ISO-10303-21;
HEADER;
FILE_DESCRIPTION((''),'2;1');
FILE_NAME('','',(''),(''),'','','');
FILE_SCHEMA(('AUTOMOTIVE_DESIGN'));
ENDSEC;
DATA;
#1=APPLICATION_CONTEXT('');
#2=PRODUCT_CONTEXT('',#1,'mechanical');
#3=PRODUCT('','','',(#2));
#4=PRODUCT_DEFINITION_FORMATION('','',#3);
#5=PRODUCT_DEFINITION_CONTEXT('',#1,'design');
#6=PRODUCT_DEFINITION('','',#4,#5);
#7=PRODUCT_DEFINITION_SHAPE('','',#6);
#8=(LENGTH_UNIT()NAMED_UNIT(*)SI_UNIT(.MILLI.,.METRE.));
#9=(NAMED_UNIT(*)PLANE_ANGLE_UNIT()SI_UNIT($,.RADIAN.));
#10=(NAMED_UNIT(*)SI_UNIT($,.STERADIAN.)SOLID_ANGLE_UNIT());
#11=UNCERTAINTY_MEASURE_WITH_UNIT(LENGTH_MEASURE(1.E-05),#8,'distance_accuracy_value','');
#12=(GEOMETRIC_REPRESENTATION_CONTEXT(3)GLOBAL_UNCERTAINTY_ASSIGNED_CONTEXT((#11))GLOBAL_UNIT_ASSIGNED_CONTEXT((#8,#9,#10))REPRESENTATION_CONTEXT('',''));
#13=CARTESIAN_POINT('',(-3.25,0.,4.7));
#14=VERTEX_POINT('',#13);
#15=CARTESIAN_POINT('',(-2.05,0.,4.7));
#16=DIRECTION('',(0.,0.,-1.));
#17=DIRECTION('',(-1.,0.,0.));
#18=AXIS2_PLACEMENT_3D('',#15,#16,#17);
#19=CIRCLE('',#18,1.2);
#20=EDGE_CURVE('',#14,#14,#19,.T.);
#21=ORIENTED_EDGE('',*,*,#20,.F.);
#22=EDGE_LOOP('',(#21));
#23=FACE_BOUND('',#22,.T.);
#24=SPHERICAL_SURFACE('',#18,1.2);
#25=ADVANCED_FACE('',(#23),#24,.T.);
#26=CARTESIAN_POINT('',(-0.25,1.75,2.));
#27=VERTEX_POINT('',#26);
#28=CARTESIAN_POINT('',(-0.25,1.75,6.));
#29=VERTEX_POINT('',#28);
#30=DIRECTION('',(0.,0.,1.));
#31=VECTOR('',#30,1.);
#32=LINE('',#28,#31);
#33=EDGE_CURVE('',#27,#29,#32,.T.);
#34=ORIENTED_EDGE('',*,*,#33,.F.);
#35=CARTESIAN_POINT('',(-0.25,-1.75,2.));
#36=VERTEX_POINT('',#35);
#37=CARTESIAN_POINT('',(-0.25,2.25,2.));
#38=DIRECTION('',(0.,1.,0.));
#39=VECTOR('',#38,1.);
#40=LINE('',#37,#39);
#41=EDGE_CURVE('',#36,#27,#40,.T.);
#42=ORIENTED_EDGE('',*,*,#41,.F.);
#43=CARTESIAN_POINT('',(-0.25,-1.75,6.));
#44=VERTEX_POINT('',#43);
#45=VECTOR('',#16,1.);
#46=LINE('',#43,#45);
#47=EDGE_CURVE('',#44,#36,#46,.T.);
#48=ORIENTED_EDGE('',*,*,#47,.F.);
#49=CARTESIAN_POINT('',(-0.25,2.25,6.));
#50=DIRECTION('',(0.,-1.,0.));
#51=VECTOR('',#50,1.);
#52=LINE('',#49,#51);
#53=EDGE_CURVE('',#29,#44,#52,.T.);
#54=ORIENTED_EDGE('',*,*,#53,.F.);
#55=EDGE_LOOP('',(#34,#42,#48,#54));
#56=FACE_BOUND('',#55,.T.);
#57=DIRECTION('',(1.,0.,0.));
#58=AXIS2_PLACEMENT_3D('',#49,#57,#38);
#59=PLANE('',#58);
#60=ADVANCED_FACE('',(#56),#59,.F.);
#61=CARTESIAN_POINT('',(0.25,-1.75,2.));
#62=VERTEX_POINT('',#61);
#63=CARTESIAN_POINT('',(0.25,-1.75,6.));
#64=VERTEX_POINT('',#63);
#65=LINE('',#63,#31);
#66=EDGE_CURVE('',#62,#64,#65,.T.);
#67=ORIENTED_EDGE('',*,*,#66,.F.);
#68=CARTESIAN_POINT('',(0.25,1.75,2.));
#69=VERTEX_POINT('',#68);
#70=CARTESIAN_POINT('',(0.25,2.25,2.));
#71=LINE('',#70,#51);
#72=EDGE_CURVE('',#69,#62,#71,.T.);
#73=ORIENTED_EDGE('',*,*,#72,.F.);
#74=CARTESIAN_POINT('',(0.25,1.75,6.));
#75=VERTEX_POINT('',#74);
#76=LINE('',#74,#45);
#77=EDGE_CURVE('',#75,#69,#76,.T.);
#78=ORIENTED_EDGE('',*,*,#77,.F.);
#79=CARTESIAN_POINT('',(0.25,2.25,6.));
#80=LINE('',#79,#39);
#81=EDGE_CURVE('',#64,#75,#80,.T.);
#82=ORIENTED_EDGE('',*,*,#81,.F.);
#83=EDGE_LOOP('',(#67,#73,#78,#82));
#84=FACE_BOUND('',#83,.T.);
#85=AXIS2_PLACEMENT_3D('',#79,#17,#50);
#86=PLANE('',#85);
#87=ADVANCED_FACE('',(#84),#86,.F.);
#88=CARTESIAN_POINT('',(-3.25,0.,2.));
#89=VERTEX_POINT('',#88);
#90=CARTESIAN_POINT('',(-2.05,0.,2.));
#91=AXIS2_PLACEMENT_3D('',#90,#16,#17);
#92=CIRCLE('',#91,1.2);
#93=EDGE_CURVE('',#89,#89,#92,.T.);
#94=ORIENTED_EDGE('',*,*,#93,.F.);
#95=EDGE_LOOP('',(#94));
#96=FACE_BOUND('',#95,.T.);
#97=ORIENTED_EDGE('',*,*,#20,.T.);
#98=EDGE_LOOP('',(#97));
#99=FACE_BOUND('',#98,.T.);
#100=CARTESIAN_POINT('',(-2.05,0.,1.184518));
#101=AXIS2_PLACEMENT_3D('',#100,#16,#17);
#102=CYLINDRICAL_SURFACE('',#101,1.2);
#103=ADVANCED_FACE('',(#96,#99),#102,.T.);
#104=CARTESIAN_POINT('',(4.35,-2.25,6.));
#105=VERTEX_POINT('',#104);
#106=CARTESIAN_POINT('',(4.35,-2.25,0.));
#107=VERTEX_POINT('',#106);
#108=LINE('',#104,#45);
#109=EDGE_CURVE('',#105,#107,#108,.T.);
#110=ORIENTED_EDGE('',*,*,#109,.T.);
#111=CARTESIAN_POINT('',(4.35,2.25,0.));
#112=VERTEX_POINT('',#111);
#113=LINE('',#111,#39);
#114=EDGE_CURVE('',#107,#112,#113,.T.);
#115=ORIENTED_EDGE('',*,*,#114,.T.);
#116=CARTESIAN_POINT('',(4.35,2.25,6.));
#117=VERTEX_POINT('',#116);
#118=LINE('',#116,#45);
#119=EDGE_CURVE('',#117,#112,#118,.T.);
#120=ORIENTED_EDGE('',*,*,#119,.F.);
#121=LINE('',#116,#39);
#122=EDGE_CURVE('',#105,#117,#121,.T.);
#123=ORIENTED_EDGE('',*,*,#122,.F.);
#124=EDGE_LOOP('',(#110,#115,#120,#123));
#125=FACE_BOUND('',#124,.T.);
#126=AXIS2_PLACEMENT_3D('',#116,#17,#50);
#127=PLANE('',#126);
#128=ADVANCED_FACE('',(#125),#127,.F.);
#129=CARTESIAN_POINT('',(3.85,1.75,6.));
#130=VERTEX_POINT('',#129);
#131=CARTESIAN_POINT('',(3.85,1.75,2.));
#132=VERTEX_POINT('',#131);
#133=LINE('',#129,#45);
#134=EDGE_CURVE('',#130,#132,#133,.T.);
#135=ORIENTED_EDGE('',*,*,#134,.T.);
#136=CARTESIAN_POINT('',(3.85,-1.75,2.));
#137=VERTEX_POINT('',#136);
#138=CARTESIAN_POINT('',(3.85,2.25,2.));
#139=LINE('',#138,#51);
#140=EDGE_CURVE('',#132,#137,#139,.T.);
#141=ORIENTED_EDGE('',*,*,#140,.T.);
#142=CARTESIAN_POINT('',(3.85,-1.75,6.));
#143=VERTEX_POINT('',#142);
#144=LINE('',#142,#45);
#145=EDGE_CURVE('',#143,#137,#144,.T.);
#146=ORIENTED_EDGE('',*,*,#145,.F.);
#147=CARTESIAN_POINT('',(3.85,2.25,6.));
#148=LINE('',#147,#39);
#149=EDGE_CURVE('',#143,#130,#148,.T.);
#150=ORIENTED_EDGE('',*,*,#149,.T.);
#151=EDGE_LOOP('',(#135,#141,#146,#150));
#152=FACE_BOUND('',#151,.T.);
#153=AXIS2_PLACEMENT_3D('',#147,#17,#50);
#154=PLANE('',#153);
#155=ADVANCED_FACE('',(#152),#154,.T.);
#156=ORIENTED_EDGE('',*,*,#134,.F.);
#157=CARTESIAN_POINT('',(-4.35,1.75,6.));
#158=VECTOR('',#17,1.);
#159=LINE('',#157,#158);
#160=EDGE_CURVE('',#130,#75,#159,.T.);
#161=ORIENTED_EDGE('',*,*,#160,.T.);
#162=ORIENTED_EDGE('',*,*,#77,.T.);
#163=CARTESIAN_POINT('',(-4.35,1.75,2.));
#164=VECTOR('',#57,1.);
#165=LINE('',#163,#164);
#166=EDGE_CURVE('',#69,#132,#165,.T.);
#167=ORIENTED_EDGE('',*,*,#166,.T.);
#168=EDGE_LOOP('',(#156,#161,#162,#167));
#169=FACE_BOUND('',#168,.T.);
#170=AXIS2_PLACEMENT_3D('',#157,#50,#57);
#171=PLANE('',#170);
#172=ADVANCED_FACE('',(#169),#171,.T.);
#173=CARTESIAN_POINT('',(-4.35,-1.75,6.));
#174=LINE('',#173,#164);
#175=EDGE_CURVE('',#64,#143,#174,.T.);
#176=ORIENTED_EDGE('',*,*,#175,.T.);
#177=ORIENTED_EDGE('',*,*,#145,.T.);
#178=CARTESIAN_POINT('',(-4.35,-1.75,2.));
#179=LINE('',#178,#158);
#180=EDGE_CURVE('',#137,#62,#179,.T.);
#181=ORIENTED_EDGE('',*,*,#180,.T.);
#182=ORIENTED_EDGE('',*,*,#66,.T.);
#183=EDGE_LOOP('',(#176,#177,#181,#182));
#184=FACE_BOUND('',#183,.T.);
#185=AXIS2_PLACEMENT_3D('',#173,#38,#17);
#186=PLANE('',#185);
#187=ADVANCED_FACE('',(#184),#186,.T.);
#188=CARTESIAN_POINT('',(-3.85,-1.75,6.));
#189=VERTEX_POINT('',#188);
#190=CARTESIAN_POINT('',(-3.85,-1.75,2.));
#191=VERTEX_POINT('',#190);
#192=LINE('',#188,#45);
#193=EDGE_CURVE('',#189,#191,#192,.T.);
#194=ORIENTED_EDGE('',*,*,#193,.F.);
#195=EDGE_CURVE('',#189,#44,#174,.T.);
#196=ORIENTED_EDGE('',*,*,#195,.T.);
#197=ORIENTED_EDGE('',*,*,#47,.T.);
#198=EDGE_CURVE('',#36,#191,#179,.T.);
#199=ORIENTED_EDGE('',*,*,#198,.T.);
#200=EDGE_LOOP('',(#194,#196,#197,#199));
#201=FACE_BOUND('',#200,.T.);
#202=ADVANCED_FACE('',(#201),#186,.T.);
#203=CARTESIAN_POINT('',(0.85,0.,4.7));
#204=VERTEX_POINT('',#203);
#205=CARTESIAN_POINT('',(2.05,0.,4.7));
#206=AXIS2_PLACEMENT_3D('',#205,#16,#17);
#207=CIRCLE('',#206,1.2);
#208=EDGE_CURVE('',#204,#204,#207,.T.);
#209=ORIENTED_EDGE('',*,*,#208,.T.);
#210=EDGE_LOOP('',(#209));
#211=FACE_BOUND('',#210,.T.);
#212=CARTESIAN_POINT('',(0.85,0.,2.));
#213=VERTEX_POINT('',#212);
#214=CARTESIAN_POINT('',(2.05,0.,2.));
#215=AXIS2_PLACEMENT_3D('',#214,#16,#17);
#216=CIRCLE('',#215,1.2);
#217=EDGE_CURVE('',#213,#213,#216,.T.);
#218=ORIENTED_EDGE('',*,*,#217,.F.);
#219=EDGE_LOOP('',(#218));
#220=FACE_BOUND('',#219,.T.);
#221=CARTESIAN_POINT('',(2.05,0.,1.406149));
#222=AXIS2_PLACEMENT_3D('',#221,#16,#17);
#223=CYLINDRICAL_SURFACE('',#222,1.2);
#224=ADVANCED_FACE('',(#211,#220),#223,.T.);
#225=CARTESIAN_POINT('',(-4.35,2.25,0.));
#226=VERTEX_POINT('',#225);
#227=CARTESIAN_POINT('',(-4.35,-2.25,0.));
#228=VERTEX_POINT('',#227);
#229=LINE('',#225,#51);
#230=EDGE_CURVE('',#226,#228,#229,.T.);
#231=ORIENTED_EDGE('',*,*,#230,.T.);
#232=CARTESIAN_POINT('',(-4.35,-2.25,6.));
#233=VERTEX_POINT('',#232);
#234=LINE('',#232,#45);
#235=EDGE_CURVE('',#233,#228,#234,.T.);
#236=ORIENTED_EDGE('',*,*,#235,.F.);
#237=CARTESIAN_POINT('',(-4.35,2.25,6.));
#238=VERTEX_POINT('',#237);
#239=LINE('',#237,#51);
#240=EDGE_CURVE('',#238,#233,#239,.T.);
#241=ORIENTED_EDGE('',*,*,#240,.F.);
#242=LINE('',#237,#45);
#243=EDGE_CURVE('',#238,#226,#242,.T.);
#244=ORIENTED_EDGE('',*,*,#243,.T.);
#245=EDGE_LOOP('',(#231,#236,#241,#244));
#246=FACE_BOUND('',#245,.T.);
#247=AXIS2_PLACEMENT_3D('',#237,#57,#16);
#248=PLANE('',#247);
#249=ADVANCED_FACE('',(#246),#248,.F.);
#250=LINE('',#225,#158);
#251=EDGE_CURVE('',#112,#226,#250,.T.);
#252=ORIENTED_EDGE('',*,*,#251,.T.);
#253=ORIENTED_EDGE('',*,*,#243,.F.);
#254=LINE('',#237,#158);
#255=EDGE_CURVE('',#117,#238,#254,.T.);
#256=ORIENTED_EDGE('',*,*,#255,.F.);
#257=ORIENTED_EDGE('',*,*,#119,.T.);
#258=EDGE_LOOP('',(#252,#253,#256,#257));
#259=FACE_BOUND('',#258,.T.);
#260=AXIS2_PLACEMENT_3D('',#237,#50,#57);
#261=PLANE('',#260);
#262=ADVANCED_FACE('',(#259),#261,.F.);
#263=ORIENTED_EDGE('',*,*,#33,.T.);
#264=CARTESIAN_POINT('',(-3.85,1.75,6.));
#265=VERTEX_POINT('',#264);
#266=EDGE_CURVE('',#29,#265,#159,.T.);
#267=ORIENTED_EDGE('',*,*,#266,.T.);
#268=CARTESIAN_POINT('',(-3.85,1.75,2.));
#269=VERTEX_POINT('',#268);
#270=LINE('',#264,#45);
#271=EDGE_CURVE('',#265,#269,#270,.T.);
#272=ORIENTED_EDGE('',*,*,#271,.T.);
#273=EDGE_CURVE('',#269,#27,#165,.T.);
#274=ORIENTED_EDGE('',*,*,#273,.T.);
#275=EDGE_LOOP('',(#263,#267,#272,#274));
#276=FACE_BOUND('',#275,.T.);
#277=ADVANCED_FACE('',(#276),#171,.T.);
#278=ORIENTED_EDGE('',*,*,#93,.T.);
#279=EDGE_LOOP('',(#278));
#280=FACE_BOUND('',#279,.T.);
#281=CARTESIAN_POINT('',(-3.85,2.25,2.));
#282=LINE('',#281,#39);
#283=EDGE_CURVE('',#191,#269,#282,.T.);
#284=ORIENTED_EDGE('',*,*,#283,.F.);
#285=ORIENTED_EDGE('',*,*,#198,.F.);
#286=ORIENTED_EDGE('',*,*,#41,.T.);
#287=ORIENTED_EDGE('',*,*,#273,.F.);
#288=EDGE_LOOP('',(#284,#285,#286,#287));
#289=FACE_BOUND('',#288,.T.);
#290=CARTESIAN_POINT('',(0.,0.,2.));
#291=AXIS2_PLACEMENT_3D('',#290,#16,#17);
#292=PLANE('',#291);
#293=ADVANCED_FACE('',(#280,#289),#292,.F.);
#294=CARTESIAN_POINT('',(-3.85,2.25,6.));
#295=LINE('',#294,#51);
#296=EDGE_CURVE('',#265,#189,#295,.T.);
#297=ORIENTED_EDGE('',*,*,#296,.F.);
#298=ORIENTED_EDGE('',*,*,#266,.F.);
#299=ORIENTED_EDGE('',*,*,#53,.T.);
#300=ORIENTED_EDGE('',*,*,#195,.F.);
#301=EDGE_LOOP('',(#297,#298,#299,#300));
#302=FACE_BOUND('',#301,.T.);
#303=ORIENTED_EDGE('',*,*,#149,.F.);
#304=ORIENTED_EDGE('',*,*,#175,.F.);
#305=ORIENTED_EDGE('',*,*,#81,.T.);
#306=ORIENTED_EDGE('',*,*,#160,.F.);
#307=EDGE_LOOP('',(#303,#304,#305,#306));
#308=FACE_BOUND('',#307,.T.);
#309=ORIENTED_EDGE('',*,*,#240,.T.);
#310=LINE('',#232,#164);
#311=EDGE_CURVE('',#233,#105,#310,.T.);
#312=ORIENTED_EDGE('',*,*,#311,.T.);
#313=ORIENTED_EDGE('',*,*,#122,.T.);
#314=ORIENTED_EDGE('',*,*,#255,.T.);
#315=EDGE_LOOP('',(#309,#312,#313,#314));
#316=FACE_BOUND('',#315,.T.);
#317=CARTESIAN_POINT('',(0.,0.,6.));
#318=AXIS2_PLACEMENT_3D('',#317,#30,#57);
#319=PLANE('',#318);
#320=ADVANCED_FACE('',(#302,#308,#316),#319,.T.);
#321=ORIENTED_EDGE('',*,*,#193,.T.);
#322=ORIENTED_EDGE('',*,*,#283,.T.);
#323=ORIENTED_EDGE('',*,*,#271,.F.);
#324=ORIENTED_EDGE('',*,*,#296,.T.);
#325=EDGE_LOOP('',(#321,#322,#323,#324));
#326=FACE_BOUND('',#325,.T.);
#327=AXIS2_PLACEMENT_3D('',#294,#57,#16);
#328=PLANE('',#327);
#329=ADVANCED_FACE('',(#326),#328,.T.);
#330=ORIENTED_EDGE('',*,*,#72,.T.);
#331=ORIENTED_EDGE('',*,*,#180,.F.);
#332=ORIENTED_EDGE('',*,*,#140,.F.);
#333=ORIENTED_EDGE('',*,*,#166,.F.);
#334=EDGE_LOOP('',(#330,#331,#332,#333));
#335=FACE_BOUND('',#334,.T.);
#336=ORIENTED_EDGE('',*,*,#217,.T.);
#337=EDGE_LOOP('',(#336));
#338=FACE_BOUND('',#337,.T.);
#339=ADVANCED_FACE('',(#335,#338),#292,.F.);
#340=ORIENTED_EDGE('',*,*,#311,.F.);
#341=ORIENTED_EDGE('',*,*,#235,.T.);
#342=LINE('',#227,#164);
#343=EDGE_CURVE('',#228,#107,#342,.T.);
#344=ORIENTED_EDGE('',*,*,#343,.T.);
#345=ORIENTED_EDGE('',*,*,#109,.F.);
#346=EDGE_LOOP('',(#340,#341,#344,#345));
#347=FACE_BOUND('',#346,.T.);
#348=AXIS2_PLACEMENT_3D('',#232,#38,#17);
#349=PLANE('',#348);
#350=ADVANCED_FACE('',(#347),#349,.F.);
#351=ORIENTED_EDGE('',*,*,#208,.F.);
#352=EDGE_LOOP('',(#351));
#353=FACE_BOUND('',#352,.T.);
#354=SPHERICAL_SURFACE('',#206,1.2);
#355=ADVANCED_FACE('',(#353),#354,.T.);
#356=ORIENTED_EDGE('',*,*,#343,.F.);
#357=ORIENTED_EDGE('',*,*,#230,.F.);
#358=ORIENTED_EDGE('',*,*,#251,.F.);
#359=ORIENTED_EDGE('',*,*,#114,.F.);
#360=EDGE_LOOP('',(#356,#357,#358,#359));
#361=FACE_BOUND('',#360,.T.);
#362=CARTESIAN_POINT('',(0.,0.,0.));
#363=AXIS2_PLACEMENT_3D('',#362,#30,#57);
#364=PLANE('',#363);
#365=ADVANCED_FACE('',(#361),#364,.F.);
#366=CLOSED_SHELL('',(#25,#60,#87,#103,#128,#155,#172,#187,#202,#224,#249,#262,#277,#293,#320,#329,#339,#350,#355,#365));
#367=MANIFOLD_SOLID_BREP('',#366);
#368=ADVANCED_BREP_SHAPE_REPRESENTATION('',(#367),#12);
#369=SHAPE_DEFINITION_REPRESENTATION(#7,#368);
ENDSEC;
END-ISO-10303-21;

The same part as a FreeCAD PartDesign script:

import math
import FreeCAD as App
import Part
import Sketcher
from FreeCAD import Vector
Q = App.Units.Quantity


def add_polygon(sketch, points):
    """Adds a closed chain of lines whose ends are joined by coincident constraints."""
    first, n = sketch.GeometryCount, len(points)
    for a, b in zip(points, points[1:] + points[:1]):
        sketch.addGeometry(Part.LineSegment(App.Vector(*a, 0), App.Vector(*b, 0)), False)
    for i in range(n):
        sketch.addConstraint(Sketcher.Constraint("Coincident", first + i, 2, first + (i + 1) % n, 1))

doc = App.newDocument("Part")
body = doc.addObject("PartDesign::Body", "Body")

# Sketch on XY plane
sketch1 = body.newObject("Sketcher::SketchObject", "Sketch")
sketch1.AttachmentSupport = (doc.getObject("XY_Plane"), [""])
sketch1.MapMode = "FlatFace"
add_polygon(sketch1, [(-4.3, 2.2), (-4.3, -2.2), (4.3, -2.2), (4.3, 2.2)])  # lines 0-3
add_polygon(sketch1, [(3.9, -1.8), (-3.9, -1.8), (-3.9, 1.8), (3.9, 1.8)])  # lines 4-7
sketch1.addConstraint([
    Sketcher.Constraint("Vertical", 0),
    Sketcher.Constraint("Horizontal", 1),
    Sketcher.Constraint("Vertical", 2),
    Sketcher.Constraint("Horizontal", 3),
    Sketcher.Constraint("Horizontal", 4),
    Sketcher.Constraint("Vertical", 5),
    Sketcher.Constraint("Horizontal", 6),
    Sketcher.Constraint("Vertical", 7),
    Sketcher.Constraint("Symmetric", 0, 2, 2, 2, -1, 1),
    Sketcher.Constraint("Symmetric", 4, 2, 6, 2, -1, 1),
    Sketcher.Constraint("DistanceX", 1, 1, 1, 2, Q("8.7 mm")),
    Sketcher.Constraint("DistanceX", 4, 2, 4, 1, Q("7.7 mm")),
    Sketcher.Constraint("DistanceY", 0, 2, 0, 1, Q("4.5 mm")),
    Sketcher.Constraint("DistanceY", 5, 1, 5, 2, Q("3.5 mm")),
])
pad1 = body.newObject("PartDesign::Pad", "Pad")
pad1.Profile = sketch1
pad1.Length = 6

# Sketch on XY plane
sketch2 = body.newObject("Sketcher::SketchObject", "Sketch001")
sketch2.AttachmentSupport = (doc.getObject("XY_Plane"), [""])
sketch2.MapMode = "FlatFace"
add_polygon(sketch2, [(-0.2, 2.2), (-0.2, -2.2), (0.2, -2.2), (0.2, 2.2)])  # lines 0-3
sketch2.addConstraint([
    Sketcher.Constraint("Vertical", 0),
    Sketcher.Constraint("Horizontal", 1),
    Sketcher.Constraint("Vertical", 2),
    Sketcher.Constraint("Horizontal", 3),
    Sketcher.Constraint("Symmetric", 0, 2, 2, 2, -1, 1),
    Sketcher.Constraint("DistanceX", 1, 1, 1, 2, Q("0.5 mm")),
    Sketcher.Constraint("DistanceY", 0, 2, 0, 1, Q("4.5 mm")),
])
pad2 = body.newObject("PartDesign::Pad", "Pad001")
pad2.Profile = sketch2
pad2.Length = 6

# Sketch on XY plane
sketch3 = body.newObject("Sketcher::SketchObject", "Sketch002")
sketch3.AttachmentSupport = (doc.getObject("XY_Plane"), [""])
sketch3.MapMode = "FlatFace"
add_polygon(sketch3, [(4.3, 2.2), (4.3, -2.2), (-4.3, -2.2), (-4.3, 2.2)])  # lines 0-3
sketch3.addConstraint([
    Sketcher.Constraint("Vertical", 0),
    Sketcher.Constraint("Horizontal", 1),
    Sketcher.Constraint("Vertical", 2),
    Sketcher.Constraint("Horizontal", 3),
    Sketcher.Constraint("Symmetric", 0, 2, 2, 2, -1, 1),
    Sketcher.Constraint("DistanceX", 1, 2, 1, 1, Q("8.7 mm")),
    Sketcher.Constraint("DistanceY", 0, 2, 0, 1, Q("4.5 mm")),
])
pad3 = body.newObject("PartDesign::Pad", "Pad002")
pad3.Profile = sketch3
pad3.Length = 2

# Sketch on XZ plane
sketch4 = body.newObject("Sketcher::SketchObject", "Sketch003")
sketch4.AttachmentSupport = (doc.getObject("XZ_Plane"), [""])
sketch4.MapMode = "FlatFace"
sketch4.addGeometry([
    Part.LineSegment(Vector(-3.2, 2, 0), Vector(-3.2, 4.7, 0)),
    Part.ArcOfCircle(Part.Circle(Vector(-2, 4.7, 0), Vector(0, 0, 1), 1.2), math.radians(90), math.radians(180)),
    Part.LineSegment(Vector(-2, 5.9, 0), Vector(-2, 2, 0)),
    Part.LineSegment(Vector(-2, 2, 0), Vector(-3.2, 2, 0)),
], False)
sketch4.addGeometry(Part.LineSegment(Vector(-2, 2, 0), Vector(-2, 5.9, 0)), True)  # axis
sketch4.addConstraint([
    Sketcher.Constraint("Tangent", 0, 2, 1, 2),
    Sketcher.Constraint("Coincident", 1, 1, 2, 1),
    Sketcher.Constraint("Coincident", 2, 2, 3, 1),
    Sketcher.Constraint("Coincident", 3, 2, 0, 1),
    Sketcher.Constraint("Vertical", 0),
    Sketcher.Constraint("Vertical", 2),
    Sketcher.Constraint("Horizontal", 3),
    Sketcher.Constraint("Vertical", 4),
    Sketcher.Constraint("Coincident", 4, 1, 2, 2),
    Sketcher.Constraint("Equal", 2, 4),
    Sketcher.Constraint("Radius", 1, Q("1.2 mm")),
    Sketcher.Constraint("DistanceX", 3, 2, 3, 1, Q("1.2 mm")),
    Sketcher.Constraint("DistanceY", 0, 1, 0, 2, Q("2.7 mm")),
    Sketcher.Constraint("DistanceY", -1, 1, 2, 2, Q("2 mm")),
    Sketcher.Constraint("DistanceX", 1, 3, -1, 1, Q("2.05 mm")),
])
revolution = body.newObject("PartDesign::Revolution", "Revolution")
revolution.Profile = sketch4
revolution.ReferenceAxis = (sketch4, ["Axis0"])
revolution.Angle = 360

# Sketch on XZ plane
sketch5 = body.newObject("Sketcher::SketchObject", "Sketch004")
sketch5.AttachmentSupport = (doc.getObject("XZ_Plane"), [""])
sketch5.MapMode = "FlatFace"
sketch5.addGeometry([
    Part.LineSegment(Vector(0.8, 2, 0), Vector(0.8, 4.7, 0)),
    Part.ArcOfCircle(Part.Circle(Vector(2.1, 4.7, 0), Vector(0, 0, 1), 1.2), math.radians(90), math.radians(180)),
    Part.LineSegment(Vector(2, 5.9, 0), Vector(2, 2, 0)),
    Part.LineSegment(Vector(2, 2, 0), Vector(0.8, 2, 0)),
], False)
sketch5.addGeometry(Part.LineSegment(Vector(2, 2, 0), Vector(2, 5.9, 0)), True)  # axis
sketch5.addConstraint([
    Sketcher.Constraint("Tangent", 0, 2, 1, 2),
    Sketcher.Constraint("Coincident", 1, 1, 2, 1),
    Sketcher.Constraint("Coincident", 2, 2, 3, 1),
    Sketcher.Constraint("Coincident", 3, 2, 0, 1),
    Sketcher.Constraint("Vertical", 0),
    Sketcher.Constraint("Vertical", 2),
    Sketcher.Constraint("Horizontal", 3),
    Sketcher.Constraint("Vertical", 4),
    Sketcher.Constraint("Coincident", 4, 1, 2, 2),
    Sketcher.Constraint("Equal", 2, 4),
    Sketcher.Constraint("Radius", 1, Q("1.2 mm")),
    Sketcher.Constraint("DistanceX", 3, 2, 3, 1, Q("1.2 mm")),
    Sketcher.Constraint("DistanceY", 0, 1, 0, 2, Q("2.7 mm")),
    Sketcher.Constraint("DistanceY", -1, 1, 2, 2, Q("2 mm")),
    Sketcher.Constraint("DistanceX", -1, 1, 1, 3, Q("2.05 mm")),
])
revolution2 = body.newObject("PartDesign::Revolution", "Revolution001")
revolution2.Profile = sketch5
revolution2.ReferenceAxis = (sketch5, ["Axis0"])
revolution2.Angle = 360

doc.recompute()
